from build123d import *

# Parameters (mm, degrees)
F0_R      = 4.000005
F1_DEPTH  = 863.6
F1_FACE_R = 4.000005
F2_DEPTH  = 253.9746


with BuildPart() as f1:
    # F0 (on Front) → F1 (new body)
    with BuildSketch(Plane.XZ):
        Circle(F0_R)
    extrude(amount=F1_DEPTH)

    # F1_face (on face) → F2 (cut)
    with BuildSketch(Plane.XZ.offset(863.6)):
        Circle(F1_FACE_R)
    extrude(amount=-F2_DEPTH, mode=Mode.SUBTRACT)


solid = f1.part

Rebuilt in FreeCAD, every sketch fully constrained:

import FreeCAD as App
import Part
import Sketcher
from FreeCAD import Vector
Q = App.Units.Quantity

doc = App.newDocument("Part")
body = doc.addObject("PartDesign::Body", "Body")

sketch1 = doc.addObject("Sketcher::SketchObject", "Sketch")
body.addObject(sketch1)
sketch1.AttachmentSupport = (doc.XZ_Plane, [""])
sketch1.MapMode = "FlatFace"
sketch1.addGeometry(Part.Circle(Vector(0, 0, 0), Vector(0, 0, 1), 4), False)
sketch1.addConstraint(Sketcher.Constraint("Coincident", 0, 3, -1, 1))
sketch1.addConstraint(Sketcher.Constraint("Diameter", 0, 8.00001))
pad1 = doc.addObject("PartDesign::Pad", "Pad")
body.addObject(pad1)
pad1.Profile = sketch1
pad1.Length = Q("34 in")

sketch2 = doc.addObject("Sketcher::SketchObject", "Sketch001")
body.addObject(sketch2)
sketch2.AttachmentSupport = (doc.XZ_Plane, [""])
sketch2.MapMode = "FlatFace"
sketch2.AttachmentOffset = App.Placement(Vector(0, 0, 34 * 25.4), App.Rotation())
sketch2.addGeometry(Part.Circle(Vector(0, 0, 0), Vector(0, 0, 1), 4), False)
sketch2.addConstraint(Sketcher.Constraint("Coincident", 0, 3, -1, 1))
sketch2.addConstraint(Sketcher.Constraint("Diameter", 0, 8.00001))
pocket1 = doc.addObject("PartDesign::Pocket", "Pocket")
body.addObject(pocket1)
pocket1.Profile = sketch2
pocket1.Length = Q("9.999 in")

doc.recompute()
